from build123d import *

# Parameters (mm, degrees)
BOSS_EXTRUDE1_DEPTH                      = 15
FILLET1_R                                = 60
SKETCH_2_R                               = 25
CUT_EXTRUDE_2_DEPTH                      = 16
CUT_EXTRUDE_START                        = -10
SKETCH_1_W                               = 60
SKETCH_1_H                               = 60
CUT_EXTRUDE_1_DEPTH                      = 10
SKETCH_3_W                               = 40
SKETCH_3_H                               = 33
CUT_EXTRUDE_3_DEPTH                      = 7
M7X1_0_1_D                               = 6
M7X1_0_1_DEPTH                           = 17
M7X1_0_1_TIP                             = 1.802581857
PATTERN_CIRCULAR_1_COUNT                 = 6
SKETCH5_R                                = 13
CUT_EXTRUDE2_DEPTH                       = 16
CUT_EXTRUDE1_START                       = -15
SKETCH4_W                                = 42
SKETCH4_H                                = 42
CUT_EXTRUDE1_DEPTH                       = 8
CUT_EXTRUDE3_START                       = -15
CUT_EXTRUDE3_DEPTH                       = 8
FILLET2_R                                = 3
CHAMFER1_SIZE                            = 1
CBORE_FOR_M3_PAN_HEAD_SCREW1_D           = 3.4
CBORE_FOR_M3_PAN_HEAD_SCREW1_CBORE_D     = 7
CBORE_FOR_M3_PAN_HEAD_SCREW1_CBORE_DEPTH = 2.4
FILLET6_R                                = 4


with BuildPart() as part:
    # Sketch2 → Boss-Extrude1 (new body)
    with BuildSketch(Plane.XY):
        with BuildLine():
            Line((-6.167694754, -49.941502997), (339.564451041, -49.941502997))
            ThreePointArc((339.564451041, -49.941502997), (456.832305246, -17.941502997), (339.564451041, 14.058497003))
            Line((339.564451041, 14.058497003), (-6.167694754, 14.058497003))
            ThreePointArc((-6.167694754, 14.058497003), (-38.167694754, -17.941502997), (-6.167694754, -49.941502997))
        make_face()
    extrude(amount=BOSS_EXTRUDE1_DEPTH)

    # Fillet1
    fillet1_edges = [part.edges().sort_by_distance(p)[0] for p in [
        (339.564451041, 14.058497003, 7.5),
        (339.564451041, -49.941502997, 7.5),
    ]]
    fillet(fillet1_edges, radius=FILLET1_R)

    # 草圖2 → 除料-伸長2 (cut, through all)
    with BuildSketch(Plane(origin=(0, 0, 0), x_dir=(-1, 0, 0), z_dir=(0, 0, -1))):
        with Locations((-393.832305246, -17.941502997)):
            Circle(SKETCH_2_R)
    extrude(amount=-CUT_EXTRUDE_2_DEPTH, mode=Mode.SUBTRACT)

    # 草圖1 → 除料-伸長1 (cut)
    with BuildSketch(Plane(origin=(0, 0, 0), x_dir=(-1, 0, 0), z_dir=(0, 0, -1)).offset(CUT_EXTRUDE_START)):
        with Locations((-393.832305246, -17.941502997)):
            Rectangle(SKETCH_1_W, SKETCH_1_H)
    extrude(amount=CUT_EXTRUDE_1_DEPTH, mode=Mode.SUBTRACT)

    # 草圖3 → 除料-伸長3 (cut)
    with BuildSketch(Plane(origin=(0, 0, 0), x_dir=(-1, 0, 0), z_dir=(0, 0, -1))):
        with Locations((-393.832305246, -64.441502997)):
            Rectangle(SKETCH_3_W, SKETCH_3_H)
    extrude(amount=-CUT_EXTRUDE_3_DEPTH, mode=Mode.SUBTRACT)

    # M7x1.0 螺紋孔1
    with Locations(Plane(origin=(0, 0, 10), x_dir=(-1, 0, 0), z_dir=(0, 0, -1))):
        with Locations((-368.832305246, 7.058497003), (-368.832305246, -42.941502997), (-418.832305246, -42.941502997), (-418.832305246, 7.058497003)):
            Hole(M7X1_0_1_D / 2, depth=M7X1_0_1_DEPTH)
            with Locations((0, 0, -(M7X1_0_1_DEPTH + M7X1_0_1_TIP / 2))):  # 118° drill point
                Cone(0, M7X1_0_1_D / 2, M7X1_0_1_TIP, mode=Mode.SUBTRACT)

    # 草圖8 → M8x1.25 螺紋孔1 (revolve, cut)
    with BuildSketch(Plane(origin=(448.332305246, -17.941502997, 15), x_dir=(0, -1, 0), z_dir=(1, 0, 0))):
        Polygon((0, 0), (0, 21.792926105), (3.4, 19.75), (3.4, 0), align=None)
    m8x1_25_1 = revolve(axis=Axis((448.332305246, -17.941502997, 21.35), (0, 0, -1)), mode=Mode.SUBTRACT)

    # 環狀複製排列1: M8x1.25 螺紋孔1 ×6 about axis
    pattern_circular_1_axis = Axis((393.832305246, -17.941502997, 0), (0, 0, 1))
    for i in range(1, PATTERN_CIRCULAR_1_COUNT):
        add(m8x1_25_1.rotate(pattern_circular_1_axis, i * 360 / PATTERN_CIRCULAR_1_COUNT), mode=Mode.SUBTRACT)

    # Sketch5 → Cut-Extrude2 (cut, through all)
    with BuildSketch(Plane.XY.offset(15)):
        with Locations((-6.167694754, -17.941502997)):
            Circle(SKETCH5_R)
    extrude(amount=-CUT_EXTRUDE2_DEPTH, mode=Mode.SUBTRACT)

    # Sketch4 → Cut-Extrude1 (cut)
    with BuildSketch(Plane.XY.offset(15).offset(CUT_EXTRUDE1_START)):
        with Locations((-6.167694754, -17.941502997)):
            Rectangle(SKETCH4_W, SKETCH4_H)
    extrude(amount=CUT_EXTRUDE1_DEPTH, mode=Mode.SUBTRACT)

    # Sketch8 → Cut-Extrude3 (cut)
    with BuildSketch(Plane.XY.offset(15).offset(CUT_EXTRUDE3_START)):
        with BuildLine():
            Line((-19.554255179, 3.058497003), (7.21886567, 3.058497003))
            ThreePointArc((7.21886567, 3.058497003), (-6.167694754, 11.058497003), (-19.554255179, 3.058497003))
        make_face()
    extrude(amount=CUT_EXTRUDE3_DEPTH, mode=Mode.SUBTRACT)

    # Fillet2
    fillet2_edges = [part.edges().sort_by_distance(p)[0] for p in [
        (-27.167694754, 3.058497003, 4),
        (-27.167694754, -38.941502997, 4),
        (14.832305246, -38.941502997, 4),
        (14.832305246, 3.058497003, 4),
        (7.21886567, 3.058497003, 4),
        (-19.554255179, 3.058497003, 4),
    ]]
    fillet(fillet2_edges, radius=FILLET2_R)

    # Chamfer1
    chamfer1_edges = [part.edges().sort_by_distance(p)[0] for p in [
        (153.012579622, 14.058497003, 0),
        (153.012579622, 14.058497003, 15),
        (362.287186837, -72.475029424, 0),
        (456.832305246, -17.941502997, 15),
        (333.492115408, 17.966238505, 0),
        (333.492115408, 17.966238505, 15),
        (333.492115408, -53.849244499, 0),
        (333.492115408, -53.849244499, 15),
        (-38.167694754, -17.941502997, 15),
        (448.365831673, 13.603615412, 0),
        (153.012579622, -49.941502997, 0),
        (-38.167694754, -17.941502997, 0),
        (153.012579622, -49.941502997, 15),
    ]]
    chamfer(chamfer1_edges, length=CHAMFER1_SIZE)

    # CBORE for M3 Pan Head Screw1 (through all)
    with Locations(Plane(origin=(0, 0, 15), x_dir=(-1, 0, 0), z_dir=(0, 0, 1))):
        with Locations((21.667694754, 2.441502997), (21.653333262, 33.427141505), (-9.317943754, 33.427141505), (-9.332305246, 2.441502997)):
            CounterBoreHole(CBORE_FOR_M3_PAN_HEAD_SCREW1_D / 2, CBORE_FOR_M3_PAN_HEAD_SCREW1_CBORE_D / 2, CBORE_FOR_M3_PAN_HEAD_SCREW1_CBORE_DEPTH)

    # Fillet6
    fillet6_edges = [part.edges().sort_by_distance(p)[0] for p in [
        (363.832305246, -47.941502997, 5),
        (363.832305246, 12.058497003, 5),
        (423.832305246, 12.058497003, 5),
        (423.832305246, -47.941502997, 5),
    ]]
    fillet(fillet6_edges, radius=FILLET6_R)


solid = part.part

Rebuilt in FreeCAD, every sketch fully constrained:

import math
import FreeCAD as App
import Part
import Sketcher

V = App.Vector
Q = App.Units.Quantity


def edges_at(feature, points):
    """Names of the edges that pass closest to the given points."""
    edges = feature.Shape.Edges
    near = lambda p: min(range(len(edges)), key=lambda i: edges[i].distToShape(Part.Vertex(*p))[0])
    return sorted({f"Edge{near(p) + 1}" for p in points})


def add_polygon(sketch, points):
    """Adds a closed chain of lines whose ends are joined by coincident constraints."""
    first, n = sketch.GeometryCount, len(points)
    for a, b in zip(points, points[1:] + points[:1]):
        sketch.addGeometry(Part.LineSegment(App.Vector(*a, 0), App.Vector(*b, 0)), False)
    for i in range(n):
        sketch.addConstraint(Sketcher.Constraint("Coincident", first + i, 2, first + (i + 1) % n, 1))

doc = App.newDocument("Part")
body = doc.addObject("PartDesign::Body", "Body")

# Sketch on XY plane
sketch1 = body.newObject("Sketcher::SketchObject", "Sketch")
sketch1.AttachmentSupport = (doc.getObject("XY_Plane"), [""])
sketch1.MapMode = "FlatFace"
sketch1.addGeometry([
    Part.LineSegment(V(-6, -50, 0), V(340, -50, 0)),
    Part.ArcOfCircle(Part.Circle(V(394, -18, 0), V(0, 0, 1), 63), math.radians(-149), math.radians(149)),
    Part.LineSegment(V(340, 14, 0), V(-6, 14, 0)),
    Part.ArcOfCircle(Part.Circle(V(-6, -18, 0), V(0, 0, 1), 32), math.radians(90), math.radians(270)),
], False)
sketch1.addConstraint([
    Sketcher.Constraint("Coincident", 0, 2, 1, 1),
    Sketcher.Constraint("Coincident", 1, 2, 2, 1),
    Sketcher.Constraint("Tangent", 2, 2, 3, 1),
    Sketcher.Constraint("Tangent", 3, 2, 0, 1),
    Sketcher.Constraint("Horizontal", 0),
    Sketcher.Constraint("Horizontal", 2),
    Sketcher.Constraint("Horizontal", 1, 3, 3, 3),
    Sketcher.Constraint("Radius", 1, Q("63 mm")),
    Sketcher.Constraint("Radius", 3, Q("32 mm")),
    Sketcher.Constraint("DistanceX", 3, 3, 1, 3, Q("400 mm")),
    Sketcher.Constraint("DistanceX", -1, 1, 0, 2, Q("339.564451 mm")),
    Sketcher.Constraint("DistanceY", 1, 3, -1, 1, Q("17.941503 mm")),
])
pad1 = body.newObject("PartDesign::Pad", "Pad")
pad1.Profile = sketch1
pad1.Length = 15
doc.recompute()

fillet = body.newObject("PartDesign::Fillet", "Fillet")
fillet.Base = (pad1, edges_at(pad1, [(339.564, 14.058, 7.5), (339.564, -49.942, 7.5)]))
fillet.Radius = 60

# Sketch on XY plane
sketch2 = body.newObject("Sketcher::SketchObject", "Sketch001")
sketch2.AttachmentSupport = (doc.getObject("XY_Plane"), [""])
sketch2.MapMode = "FlatFace"
sketch2.addGeometry(Part.Circle(V(394, -18, 0), V(0, 0, 1), 25), False)
sketch2.addConstraint([
    Sketcher.Constraint("Diameter", 0, Q("50 mm")),
    Sketcher.Constraint("DistanceX", -1, 1, 0, 3, Q("393.832305 mm")),
    Sketcher.Constraint("DistanceY", 0, 3, -1, 1, Q("17.941503 mm")),
])
pocket1 = body.newObject("PartDesign::Pocket", "Pocket")
pocket1.Profile = sketch2
pocket1.Type = "ThroughAll"
pocket1.Reversed = True

# Sketch on XY plane
sketch3 = body.newObject("Sketcher::SketchObject", "Sketch002")
sketch3.AttachmentSupport = (doc.getObject("XY_Plane"), [""])
sketch3.MapMode = "FlatFace"
sketch3.AttachmentOffset = App.Placement(V(0, 0, 10), App.Rotation())
add_polygon(sketch3, [(424, 12), (424, -48), (364, -48), (364, 12)])  # lines 0-3
sketch3.addConstraint([
    Sketcher.Constraint("Vertical", 0),
    Sketcher.Constraint("Horizontal", 1),
    Sketcher.Constraint("Vertical", 2),
    Sketcher.Constraint("Horizontal", 3),
    Sketcher.Constraint("Equal", 3, 0),
    Sketcher.Constraint("DistanceX", 1, 2, 1, 1, Q("60 mm")),
    Sketcher.Constraint("DistanceX", -1, 1, 0, 2, Q("423.832305 mm")),
    Sketcher.Constraint("DistanceY", 0, 2, -1, 1, Q("47.941503 mm")),
])
pocket2 = body.newObject("PartDesign::Pocket", "Pocket001")
pocket2.Profile = sketch3
pocket2.Length = 10

# Sketch on XY plane
sketch4 = body.newObject("Sketcher::SketchObject", "Sketch003")
sketch4.AttachmentSupport = (doc.getObject("XY_Plane"), [""])
sketch4.MapMode = "FlatFace"
add_polygon(sketch4, [(414, -48), (414, -81), (374, -81), (374, -48)])  # lines 0-3
sketch4.addConstraint([
    Sketcher.Constraint("Vertical", 0),
    Sketcher.Constraint("Horizontal", 1),
    Sketcher.Constraint("Vertical", 2),
    Sketcher.Constraint("Horizontal", 3),
    Sketcher.Constraint("DistanceX", 1, 2, 1, 1, Q("40 mm")),
    Sketcher.Constraint("DistanceY", 0, 2, 0, 1, Q("33 mm")),
    Sketcher.Constraint("DistanceX", -1, 1, 0, 2, Q("413.832305 mm")),
    Sketcher.Constraint("DistanceY", 0, 2, -1, 1, Q("80.941503 mm")),
])
pocket3 = body.newObject("PartDesign::Pocket", "Pocket002")
pocket3.Profile = sketch4
pocket3.Length = 7
pocket3.Reversed = True

# Sketch on XY plane
sketch5 = body.newObject("Sketcher::SketchObject", "Sketch004")
sketch5.AttachmentSupport = (doc.getObject("XY_Plane"), [""])
sketch5.MapMode = "FlatFace"
sketch5.AttachmentOffset = App.Placement(V(0, 0, 10), App.Rotation())
sketch5.addGeometry([
    Part.Circle(V(368.8, 7.1, 0), V(0, 0, 1), 3),
    Part.Circle(V(368.8, -42.9, 0), V(0, 0, 1), 3),
    Part.Circle(V(418.8, -42.9, 0), V(0, 0, 1), 3),
    Part.Circle(V(418.8, 7.1, 0), V(0, 0, 1), 3),
], False)
sketch5.addConstraint([
    Sketcher.Constraint("Equal", 0, 1),
    Sketcher.Constraint("Equal", 1, 2),
    Sketcher.Constraint("Equal", 2, 3),
    Sketcher.Constraint("Horizontal", 1, 3, 2, 3),
    Sketcher.Constraint("Horizontal", 0, 3, 3, 3),
    Sketcher.Constraint("Vertical", 0, 3, 1, 3),
    Sketcher.Constraint("Vertical", 2, 3, 3, 3),
    Sketcher.Constraint("Diameter", 0, Q("6 mm")),
    Sketcher.Constraint("DistanceY", 1, 3, 0, 3, Q("50 mm")),
    Sketcher.Constraint("DistanceX", 1, 3, 2, 3, Q("50 mm")),
    Sketcher.Constraint("DistanceX", -1, 1, 0, 3, Q("368.832305 mm")),
    Sketcher.Constraint("DistanceY", -1, 1, 0, 3, Q("7.058497 mm")),
])
doc.recompute()
hole = body.newObject("PartDesign::Hole", "Hole")
hole.Profile = sketch5
hole.ThreadType = "None"
hole.Diameter = 6
hole.DepthType = "Dimension"
hole.Depth = 17
hole.DrillPoint = "Angled"
hole.DrillPointAngle = 118
hole.Reversed = True

# Sketch on YZ plane
sketch6 = body.newObject("Sketcher::SketchObject", "Sketch005")
sketch6.AttachmentSupport = (doc.getObject("YZ_Plane"), [""])
sketch6.MapMode = "FlatFace"
sketch6.AttachmentOffset = App.Placement(V(0, 0, 448.332305), App.Rotation())
add_polygon(sketch6, [(-17.9, -6.8), (-17.9, 15), (-21.3, 15), (-21.3, -4.8)])  # lines 0-3
sketch6.addGeometry(Part.LineSegment(V(-17.9, 15, 0), V(-17.9, -6.8, 0)), True)  # axis
sketch6.addConstraint([
    Sketcher.Constraint("Vertical", 0),
    Sketcher.Constraint("Horizontal", 1),
    Sketcher.Constraint("Vertical", 2),
    Sketcher.Constraint("Vertical", 4),
    Sketcher.Constraint("Coincident", 4, 1, 0, 2),
    Sketcher.Constraint("Equal", 0, 4),
    Sketcher.Constraint("Angle", 3, Q("-31 deg")),
    Sketcher.Constraint("DistanceX", 1, 2, 1, 1, Q("3.4 mm")),
    Sketcher.Constraint("DistanceY", -1, 1, 0, 2, Q("15 mm")),
    Sketcher.Constraint("DistanceY", 2, 2, 2, 1, Q("19.75 mm")),
    Sketcher.Constraint("DistanceX", 0, 2, -1, 1, Q("17.941503 mm")),
])
groove = body.newObject("PartDesign::Groove", "Groove")
groove.Profile = sketch6
groove.ReferenceAxis = (sketch6, ["Axis0"])
groove.Angle = 360
doc.recompute()

datumline = body.newObject("PartDesign::Line", "DatumLine")
datumline.Placement = App.Placement(V(393.832305, -17.941503, 0), App.Rotation(V(0, 0, 1), V(0, 0, 1)))
polarpattern = body.newObject("PartDesign::PolarPattern", "PolarPattern")
polarpattern.Originals = [groove]
polarpattern.Axis = (datumline, [""])
polarpattern.Angle = 360
polarpattern.Occurrences = 6
body.Tip = polarpattern

# Sketch on XY plane
sketch7 = body.newObject("Sketcher::SketchObject", "Sketch006")
sketch7.AttachmentSupport = (doc.getObject("XY_Plane"), [""])
sketch7.MapMode = "FlatFace"
sketch7.AttachmentOffset = App.Placement(V(0, 0, 15), App.Rotation())
sketch7.addGeometry(Part.Circle(V(-6, -18, 0), V(0, 0, 1), 13), False)
sketch7.addConstraint([
    Sketcher.Constraint("Diameter", 0, Q("26 mm")),
    Sketcher.Constraint("DistanceX", 0, 3, -1, 1, Q("6.167695 mm")),
    Sketcher.Constraint("DistanceY", 0, 3, -1, 1, Q("17.941503 mm")),
])
pocket4 = body.newObject("PartDesign::Pocket", "Pocket003")
pocket4.Profile = sketch7
pocket4.Type = "ThroughAll"

# Sketch on XY plane
sketch8 = body.newObject("Sketcher::SketchObject", "Sketch007")
sketch8.AttachmentSupport = (doc.getObject("XY_Plane"), [""])
sketch8.MapMode = "FlatFace"
add_polygon(sketch8, [(-27, 3), (-27, -39), (15, -39), (15, 3)])  # lines 0-3
sketch8.addConstraint([
    Sketcher.Constraint("Vertical", 0),
    Sketcher.Constraint("Horizontal", 1),
    Sketcher.Constraint("Vertical", 2),
    Sketcher.Constraint("Horizontal", 3),
    Sketcher.Constraint("Equal", 3, 0),
    Sketcher.Constraint("DistanceX", 1, 1, 1, 2, Q("42 mm")),
    Sketcher.Constraint("DistanceX", 0, 2, -1, 1, Q("27.167695 mm")),
    Sketcher.Constraint("DistanceY", 0, 2, -1, 1, Q("38.941503 mm")),
])
pocket5 = body.newObject("PartDesign::Pocket", "Pocket004")
pocket5.Profile = sketch8
pocket5.Length = 8
pocket5.Reversed = True

# Sketch on XY plane
sketch9 = body.newObject("Sketcher::SketchObject", "Sketch008")
sketch9.AttachmentSupport = (doc.getObject("XY_Plane"), [""])
sketch9.MapMode = "FlatFace"
sketch9.addGeometry([
    Part.LineSegment(V(-20, 3, 0), V(7, 3, 0)),
    Part.ArcOfCircle(Part.Circle(V(-6, -4, 0), V(0, 0, 1), 15), math.radians(28), math.radians(152)),
], False)
sketch9.addConstraint([
    Sketcher.Constraint("Coincident", 0, 1, 1, 2),
    Sketcher.Constraint("Coincident", 1, 1, 0, 2),
    Sketcher.Constraint("Horizontal", 0),
    Sketcher.Constraint("Radius", 1, Q("15.2 mm")),
    Sketcher.Constraint("DistanceY", 1, 3, 0, 1, Q("7.2 mm")),
    Sketcher.Constraint("DistanceX", 1, 3, -1, 1, Q("6.167695 mm")),
    Sketcher.Constraint("DistanceY", 1, 3, -1, 1, Q("4.141503 mm")),
])
pocket6 = body.newObject("PartDesign::Pocket", "Pocket005")
pocket6.Profile = sketch9
pocket6.Length = 8
pocket6.Reversed = True
doc.recompute()

fillet2 = body.newObject("PartDesign::Fillet", "Fillet001")
fillet2.Base = (pocket6, edges_at(pocket6, [
    (-27.168, 3.058, 4),
    (-27.168, -38.942, 4),
    (14.832, -38.942, 4),
    (14.832, 3.058, 4),
    (7.219, 3.058, 4),
    (-19.554, 3.058, 4),
]))
fillet2.Radius = 3
doc.recompute()

chamfer = body.newObject("PartDesign::Chamfer", "Chamfer")
chamfer.Base = (fillet2, edges_at(fillet2, [
    (153.013, 14.058, 0),
    (153.013, 14.058, 15),
    (362.287, -72.475, 0),
    (456.832, -17.942, 15),
    (333.492, 17.966, 0),
    (333.492, 17.966, 15),
    (333.492, -53.849, 0),
    (333.492, -53.849, 15),
    (-38.168, -17.942, 15),
    (448.366, 13.604, 0),
    (153.013, -49.942, 0),
    (-38.168, -17.942, 0),
    (153.013, -49.942, 15),
]))
chamfer.Size = 1

# Sketch on XY plane
sketch10 = body.newObject("Sketcher::SketchObject", "Sketch009")
sketch10.AttachmentSupport = (doc.getObject("XY_Plane"), [""])
sketch10.MapMode = "FlatFace"
sketch10.AttachmentOffset = App.Placement(V(0, 0, 15), App.Rotation())
sketch10.addGeometry([
    Part.Circle(V(-21.7, -2.4, 0), V(0, 0, 1), 1.7),
    Part.Circle(V(-21.7, -33.4, 0), V(0, 0, 1), 1.7),
    Part.Circle(V(9.3, -33.4, 0), V(0, 0, 1), 1.7),
    Part.Circle(V(9.3, -2.4, 0), V(0, 0, 1), 1.7),
], False)
sketch10.addConstraint([
    Sketcher.Constraint("Equal", 0, 1),
    Sketcher.Constraint("Equal", 1, 2),
    Sketcher.Constraint("Equal", 2, 3),
    Sketcher.Constraint("Horizontal", 1, 3, 2, 3),
    Sketcher.Constraint("Horizontal", 0, 3, 3, 3),
    Sketcher.Constraint("Diameter", 0, Q("3.4 mm")),
    Sketcher.Constraint("DistanceX", 0, 3, 3, 3, Q("31 mm")),
    Sketcher.Constraint("DistanceY", 1, 3, -1, 1, Q("33.427142 mm")),
    Sketcher.Constraint("DistanceX", 0, 3, 1, 3, Q("0.014361 mm")),
    Sketcher.Constraint("DistanceY", 1, 3, 0, 3, Q("30.985639 mm")),
    Sketcher.Constraint("DistanceX", 0, 3, 2, 3, Q("30.985639 mm")),
    Sketcher.Constraint("DistanceX", 0, 3, -1, 1, Q("21.667695 mm")),
])
doc.recompute()
hole2 = body.newObject("PartDesign::Hole", "Hole001")
hole2.Profile = sketch10
hole2.ThreadType = "None"
hole2.Diameter = 3.4
hole2.DepthType = "ThroughAll"
hole2.HoleCutType = "Counterbore"
hole2.HoleCutDiameter = 7
hole2.HoleCutDepth = 2.4
doc.recompute()

fillet3 = body.newObject("PartDesign::Fillet", "Fillet002")
fillet3.Base = (hole2, edges_at(hole2, [
    (363.832, -47.942, 5),
    (363.832, 12.058, 5),
    (423.832, 12.058, 5),
    (423.832, -47.942, 5),
]))
fillet3.Radius = 4

doc.recompute()
